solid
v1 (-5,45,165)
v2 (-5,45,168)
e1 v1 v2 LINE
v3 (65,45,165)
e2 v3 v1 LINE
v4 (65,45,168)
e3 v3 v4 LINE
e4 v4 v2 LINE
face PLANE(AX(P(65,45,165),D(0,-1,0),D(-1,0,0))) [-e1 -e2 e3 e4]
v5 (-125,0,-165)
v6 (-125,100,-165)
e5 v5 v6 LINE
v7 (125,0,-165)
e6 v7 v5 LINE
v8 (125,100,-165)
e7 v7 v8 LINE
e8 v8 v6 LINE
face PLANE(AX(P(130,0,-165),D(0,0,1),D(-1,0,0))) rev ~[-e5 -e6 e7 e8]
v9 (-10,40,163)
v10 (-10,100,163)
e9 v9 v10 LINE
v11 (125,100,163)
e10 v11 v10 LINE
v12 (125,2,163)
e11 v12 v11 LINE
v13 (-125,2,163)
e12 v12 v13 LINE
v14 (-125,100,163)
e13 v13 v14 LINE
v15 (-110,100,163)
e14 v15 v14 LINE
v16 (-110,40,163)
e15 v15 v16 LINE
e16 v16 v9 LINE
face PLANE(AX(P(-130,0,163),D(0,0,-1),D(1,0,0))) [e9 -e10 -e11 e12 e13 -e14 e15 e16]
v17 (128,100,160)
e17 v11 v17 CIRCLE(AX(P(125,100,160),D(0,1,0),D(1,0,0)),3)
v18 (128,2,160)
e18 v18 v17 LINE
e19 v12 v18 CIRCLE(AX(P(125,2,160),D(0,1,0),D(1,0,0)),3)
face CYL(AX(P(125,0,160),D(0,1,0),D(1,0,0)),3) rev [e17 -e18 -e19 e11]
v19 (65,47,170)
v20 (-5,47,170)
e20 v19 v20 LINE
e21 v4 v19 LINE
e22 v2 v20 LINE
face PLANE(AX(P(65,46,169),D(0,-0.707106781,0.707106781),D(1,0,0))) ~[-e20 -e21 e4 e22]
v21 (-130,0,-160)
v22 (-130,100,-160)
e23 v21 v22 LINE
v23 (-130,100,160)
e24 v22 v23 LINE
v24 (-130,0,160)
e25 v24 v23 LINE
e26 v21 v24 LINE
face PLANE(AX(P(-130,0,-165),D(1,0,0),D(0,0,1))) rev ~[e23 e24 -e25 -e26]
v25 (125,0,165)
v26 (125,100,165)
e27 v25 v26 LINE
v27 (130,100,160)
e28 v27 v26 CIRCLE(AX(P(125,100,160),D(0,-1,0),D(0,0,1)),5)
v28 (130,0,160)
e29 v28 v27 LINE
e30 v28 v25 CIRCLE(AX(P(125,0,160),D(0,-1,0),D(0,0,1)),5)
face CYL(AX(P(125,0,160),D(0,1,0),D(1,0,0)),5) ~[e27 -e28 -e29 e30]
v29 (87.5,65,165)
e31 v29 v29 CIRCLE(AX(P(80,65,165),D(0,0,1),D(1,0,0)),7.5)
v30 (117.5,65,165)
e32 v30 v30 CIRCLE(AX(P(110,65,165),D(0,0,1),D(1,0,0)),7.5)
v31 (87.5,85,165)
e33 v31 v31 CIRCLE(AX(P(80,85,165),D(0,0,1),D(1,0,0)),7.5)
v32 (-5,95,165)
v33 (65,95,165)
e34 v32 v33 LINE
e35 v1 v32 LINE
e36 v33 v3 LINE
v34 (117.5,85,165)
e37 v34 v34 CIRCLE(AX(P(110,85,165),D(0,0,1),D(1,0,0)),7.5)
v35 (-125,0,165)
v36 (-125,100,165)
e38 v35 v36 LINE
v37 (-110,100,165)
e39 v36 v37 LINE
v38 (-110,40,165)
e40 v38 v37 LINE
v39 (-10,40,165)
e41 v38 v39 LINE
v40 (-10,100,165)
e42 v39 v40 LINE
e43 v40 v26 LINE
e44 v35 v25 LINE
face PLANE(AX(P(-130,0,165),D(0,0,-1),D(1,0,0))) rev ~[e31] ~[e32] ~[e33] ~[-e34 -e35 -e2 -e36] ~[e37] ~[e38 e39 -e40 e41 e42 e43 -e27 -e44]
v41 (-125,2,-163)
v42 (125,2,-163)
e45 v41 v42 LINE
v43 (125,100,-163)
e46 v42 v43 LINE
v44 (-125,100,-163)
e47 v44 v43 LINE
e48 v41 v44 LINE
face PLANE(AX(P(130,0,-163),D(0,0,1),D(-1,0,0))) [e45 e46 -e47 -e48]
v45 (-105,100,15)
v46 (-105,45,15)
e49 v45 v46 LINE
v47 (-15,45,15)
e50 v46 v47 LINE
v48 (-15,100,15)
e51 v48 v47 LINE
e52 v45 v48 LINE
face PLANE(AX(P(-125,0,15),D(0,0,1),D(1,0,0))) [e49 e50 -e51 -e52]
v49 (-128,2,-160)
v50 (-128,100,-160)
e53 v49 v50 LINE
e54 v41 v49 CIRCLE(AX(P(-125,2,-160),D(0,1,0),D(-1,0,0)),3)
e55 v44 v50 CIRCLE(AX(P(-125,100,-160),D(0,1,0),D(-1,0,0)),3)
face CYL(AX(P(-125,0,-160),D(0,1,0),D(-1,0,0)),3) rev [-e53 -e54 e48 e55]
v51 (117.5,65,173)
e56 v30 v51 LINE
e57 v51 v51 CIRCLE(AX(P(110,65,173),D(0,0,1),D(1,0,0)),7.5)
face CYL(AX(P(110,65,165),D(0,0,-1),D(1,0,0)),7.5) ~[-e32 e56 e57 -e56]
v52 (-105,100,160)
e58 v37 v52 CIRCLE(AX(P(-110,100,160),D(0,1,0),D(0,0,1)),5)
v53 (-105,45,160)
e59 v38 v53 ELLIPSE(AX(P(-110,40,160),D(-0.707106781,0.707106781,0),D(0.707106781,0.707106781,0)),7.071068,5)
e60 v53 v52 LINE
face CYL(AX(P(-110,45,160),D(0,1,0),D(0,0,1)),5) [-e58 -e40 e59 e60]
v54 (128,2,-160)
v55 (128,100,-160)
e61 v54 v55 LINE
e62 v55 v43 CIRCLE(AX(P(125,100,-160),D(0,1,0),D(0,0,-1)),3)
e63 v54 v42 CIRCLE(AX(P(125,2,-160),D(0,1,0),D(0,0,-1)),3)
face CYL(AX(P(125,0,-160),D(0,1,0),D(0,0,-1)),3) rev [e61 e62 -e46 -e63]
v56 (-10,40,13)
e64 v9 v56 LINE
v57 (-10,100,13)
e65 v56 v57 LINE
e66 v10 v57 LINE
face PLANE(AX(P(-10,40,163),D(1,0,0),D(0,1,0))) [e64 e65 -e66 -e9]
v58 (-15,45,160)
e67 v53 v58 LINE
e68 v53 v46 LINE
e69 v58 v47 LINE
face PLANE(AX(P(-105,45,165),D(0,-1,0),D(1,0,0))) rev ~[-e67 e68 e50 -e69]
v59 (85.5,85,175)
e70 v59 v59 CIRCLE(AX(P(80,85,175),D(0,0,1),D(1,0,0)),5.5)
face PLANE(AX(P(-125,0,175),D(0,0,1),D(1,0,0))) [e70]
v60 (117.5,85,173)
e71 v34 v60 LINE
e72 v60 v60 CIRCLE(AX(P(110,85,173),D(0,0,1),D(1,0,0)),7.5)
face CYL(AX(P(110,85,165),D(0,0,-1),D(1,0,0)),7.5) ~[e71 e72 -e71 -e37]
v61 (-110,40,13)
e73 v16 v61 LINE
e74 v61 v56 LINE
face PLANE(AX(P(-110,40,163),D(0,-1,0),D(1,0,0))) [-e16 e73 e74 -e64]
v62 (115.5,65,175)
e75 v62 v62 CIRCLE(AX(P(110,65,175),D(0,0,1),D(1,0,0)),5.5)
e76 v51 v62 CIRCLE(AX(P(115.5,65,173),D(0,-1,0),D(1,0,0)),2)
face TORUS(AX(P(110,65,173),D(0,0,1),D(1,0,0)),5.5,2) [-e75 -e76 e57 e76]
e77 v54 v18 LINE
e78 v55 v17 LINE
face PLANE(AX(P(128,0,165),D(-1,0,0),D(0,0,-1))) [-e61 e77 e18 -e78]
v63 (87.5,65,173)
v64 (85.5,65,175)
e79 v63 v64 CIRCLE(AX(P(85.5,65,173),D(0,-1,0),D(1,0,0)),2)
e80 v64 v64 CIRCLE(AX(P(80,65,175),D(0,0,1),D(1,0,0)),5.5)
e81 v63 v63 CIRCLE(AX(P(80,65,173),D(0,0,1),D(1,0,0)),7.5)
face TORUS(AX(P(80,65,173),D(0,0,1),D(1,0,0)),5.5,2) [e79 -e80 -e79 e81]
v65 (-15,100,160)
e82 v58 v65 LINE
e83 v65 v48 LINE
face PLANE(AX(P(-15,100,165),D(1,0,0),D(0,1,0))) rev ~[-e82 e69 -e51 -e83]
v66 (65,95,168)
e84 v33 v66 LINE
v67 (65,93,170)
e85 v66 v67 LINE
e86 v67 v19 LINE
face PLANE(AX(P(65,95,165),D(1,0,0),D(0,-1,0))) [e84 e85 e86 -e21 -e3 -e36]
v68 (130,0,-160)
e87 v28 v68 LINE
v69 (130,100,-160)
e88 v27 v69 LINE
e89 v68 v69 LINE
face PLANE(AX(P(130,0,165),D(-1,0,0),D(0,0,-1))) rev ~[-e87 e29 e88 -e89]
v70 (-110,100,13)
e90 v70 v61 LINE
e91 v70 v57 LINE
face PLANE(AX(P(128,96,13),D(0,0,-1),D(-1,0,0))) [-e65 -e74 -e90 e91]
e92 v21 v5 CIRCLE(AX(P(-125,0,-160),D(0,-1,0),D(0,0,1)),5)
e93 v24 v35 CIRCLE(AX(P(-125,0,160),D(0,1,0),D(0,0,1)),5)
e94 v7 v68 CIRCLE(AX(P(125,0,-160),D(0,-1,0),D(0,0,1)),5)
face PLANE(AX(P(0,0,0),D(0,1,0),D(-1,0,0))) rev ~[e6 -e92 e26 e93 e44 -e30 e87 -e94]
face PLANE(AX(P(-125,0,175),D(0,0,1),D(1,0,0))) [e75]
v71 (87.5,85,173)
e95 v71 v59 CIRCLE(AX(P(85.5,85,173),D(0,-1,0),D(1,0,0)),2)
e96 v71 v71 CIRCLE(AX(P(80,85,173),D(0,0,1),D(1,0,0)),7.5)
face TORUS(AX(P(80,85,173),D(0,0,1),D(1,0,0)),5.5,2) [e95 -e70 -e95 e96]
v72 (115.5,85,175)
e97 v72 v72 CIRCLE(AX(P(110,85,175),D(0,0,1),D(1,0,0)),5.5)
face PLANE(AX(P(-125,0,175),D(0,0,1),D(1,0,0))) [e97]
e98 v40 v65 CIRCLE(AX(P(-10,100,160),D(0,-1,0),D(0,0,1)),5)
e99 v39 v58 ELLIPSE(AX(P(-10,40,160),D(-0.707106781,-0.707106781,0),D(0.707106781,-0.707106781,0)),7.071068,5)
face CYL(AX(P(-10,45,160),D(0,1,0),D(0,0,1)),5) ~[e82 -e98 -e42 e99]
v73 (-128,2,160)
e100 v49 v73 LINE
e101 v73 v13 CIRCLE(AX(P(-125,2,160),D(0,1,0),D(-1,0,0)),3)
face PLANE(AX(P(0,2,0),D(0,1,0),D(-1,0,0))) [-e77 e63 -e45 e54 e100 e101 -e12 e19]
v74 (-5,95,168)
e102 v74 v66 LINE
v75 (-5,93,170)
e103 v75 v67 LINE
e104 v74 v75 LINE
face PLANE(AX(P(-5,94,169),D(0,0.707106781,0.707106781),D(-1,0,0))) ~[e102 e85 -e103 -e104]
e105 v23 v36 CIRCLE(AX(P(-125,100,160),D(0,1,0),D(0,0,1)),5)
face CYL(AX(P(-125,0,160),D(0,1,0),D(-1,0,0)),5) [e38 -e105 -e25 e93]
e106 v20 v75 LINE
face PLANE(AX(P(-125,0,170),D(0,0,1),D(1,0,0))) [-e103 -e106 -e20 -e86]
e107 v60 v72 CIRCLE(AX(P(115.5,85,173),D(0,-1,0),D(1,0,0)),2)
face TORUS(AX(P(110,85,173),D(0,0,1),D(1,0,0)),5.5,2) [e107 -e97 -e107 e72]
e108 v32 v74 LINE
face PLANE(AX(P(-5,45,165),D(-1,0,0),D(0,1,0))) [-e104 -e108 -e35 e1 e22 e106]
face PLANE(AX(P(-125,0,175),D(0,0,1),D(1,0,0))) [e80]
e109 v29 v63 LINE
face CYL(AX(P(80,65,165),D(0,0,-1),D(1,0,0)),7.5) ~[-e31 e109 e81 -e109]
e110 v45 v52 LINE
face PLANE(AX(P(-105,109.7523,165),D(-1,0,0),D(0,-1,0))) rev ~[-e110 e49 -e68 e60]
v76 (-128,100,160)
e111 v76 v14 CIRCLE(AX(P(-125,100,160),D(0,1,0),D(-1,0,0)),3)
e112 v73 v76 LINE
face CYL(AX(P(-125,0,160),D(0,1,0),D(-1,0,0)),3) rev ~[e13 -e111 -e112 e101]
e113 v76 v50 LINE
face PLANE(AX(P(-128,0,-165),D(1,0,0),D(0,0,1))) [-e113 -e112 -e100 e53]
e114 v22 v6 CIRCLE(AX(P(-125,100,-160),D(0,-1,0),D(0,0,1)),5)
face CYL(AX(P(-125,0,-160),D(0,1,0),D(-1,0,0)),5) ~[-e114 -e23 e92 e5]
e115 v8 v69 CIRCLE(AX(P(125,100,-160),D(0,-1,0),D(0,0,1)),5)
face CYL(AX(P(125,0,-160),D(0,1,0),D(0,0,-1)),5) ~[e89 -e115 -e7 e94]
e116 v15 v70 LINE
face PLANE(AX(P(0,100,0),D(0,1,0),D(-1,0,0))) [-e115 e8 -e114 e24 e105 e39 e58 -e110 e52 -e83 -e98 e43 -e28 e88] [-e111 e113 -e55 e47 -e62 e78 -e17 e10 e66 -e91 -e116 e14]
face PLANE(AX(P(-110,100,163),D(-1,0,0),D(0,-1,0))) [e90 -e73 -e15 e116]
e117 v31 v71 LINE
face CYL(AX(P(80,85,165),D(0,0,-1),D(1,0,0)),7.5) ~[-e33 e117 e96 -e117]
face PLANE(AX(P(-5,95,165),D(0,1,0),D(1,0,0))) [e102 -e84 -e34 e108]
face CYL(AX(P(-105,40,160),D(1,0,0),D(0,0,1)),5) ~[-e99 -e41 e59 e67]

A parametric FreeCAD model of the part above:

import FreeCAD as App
import Part
import Sketcher
from FreeCAD import Vector
Q = App.Units.Quantity


def edges_at(feature, points):
    """Names of the edges that pass closest to the given points."""
    edges = feature.Shape.Edges
    near = lambda p: min(range(len(edges)), key=lambda i: edges[i].distToShape(Part.Vertex(*p))[0])
    return sorted({f"Edge{near(p) + 1}" for p in points})


def faces_at(feature, points):
    """Names of the faces that lie closest to the given points."""
    faces = feature.Shape.Faces
    near = lambda p: min(range(len(faces)), key=lambda i: faces[i].distToShape(Part.Vertex(*p))[0])
    return sorted({f"Face{near(p) + 1}" for p in points})

doc = App.newDocument("Part")
params = doc.addObject("Spreadsheet::Sheet", "Params")
for row, (alias, value) in enumerate([
    ("sketch1_width", "260 mm"),
    ("sketch1_height", "330 mm"),
    ("pad1_length", "100 mm"),
    ("fillet_radius", "5 mm"),
    ("thickness_wall", "2 mm"),
    ("sketch2_width", "100 mm"),
    ("sketch2_height", "60 mm"),
    ("pad2_length", "150 mm"),
    ("sketch3_width", "90 mm"),
    ("pocket1_length", "150 mm"),
    ("fillet2_radius", "5 mm"),
    ("sketch4_diameter", "15 mm"),
    ("pad3_length", "10 mm"),
    ("fillet3_radius", "2 mm"),
    ("sketch5_width", "70 mm"),
    ("sketch5_height", "50 mm"),
    ("pad4_length", "5 mm"),
    ("chamfer_size", "2 mm"),
], start=1):
    params.set(f"A{row}", alias)
    params.set(f"B{row}", "=" + value)
    params.setAlias(f"B{row}", alias)

body = doc.addObject("PartDesign::Body", "Body")

sketch1 = body.newObject("Sketcher::SketchObject", "Sketch")
sketch1.AttachmentSupport = (doc.getObject("XZ_Plane"), [""])
sketch1.MapMode = "FlatFace"
sketch1.addGeometry(Part.LineSegment(Vector(-130, -165, 0), Vector(-130, 165, 0)), False)
sketch1.addGeometry(Part.LineSegment(Vector(-130, 165, 0), Vector(130, 165, 0)), False)
sketch1.addGeometry(Part.LineSegment(Vector(130, 165, 0), Vector(130, -165, 0)), False)
sketch1.addGeometry(Part.LineSegment(Vector(130, -165, 0), Vector(-130, -165, 0)), False)
sketch1.addConstraint(Sketcher.Constraint("Coincident", 0, 2, 1, 1))
sketch1.addConstraint(Sketcher.Constraint("Coincident", 1, 2, 2, 1))
sketch1.addConstraint(Sketcher.Constraint("Coincident", 2, 2, 3, 1))
sketch1.addConstraint(Sketcher.Constraint("Coincident", 3, 2, 0, 1))
sketch1.addConstraint(Sketcher.Constraint("Vertical", 0))
sketch1.addConstraint(Sketcher.Constraint("Horizontal", 1))
sketch1.addConstraint(Sketcher.Constraint("Vertical", 2))
sketch1.addConstraint(Sketcher.Constraint("Horizontal", 3))
sketch1.addConstraint(Sketcher.Constraint("Symmetric", 0, 2, 2, 2, -1, 1))
sketch1.addConstraint(Sketcher.Constraint("DistanceX", 1, 1, 1, 2, Q("260 mm")))
sketch1.addConstraint(Sketcher.Constraint("DistanceY", 0, 1, 0, 2, Q("330 mm")))
sketch1.setExpression("Constraints[9]", "Params.sketch1_width")
sketch1.setExpression("Constraints[10]", "Params.sketch1_height")
pad1 = body.newObject("PartDesign::Pad", "Pad")
pad1.Profile = sketch1
pad1.setExpression("Length", "Params.pad1_length")
pad1.Reversed = True
doc.recompute()

fillet = body.newObject("PartDesign::Fillet", "Fillet")
fillet.Base = (pad1, edges_at(pad1, [
    (130, 50, 165),
    (130, 50, -165),
    (-130, 50, -165),
    (-130, 50, 165),
]))
fillet.setExpression("Radius", "Params.fillet_radius")
doc.recompute()

thickness = body.newObject("PartDesign::Thickness", "Thickness")
thickness.Base = (fillet, faces_at(fillet, [(43.333, 100, 53.333)]))
thickness.setExpression("Value", "Params.thickness_wall")
thickness.Reversed = True
thickness.Join = "Intersection"

sketch2 = body.newObject("Sketcher::SketchObject", "Sketch001")
sketch2.AttachmentSupport = (doc.getObject("XY_Plane"), [""])
sketch2.MapMode = "FlatFace"
sketch2.AttachmentOffset = App.Placement(Vector(0, 0, 163), App.Rotation())
sketch2.addGeometry(Part.LineSegment(Vector(-110, 40, 0), Vector(-110, 100, 0)), False)
sketch2.addGeometry(Part.LineSegment(Vector(-110, 100, 0), Vector(-10, 100, 0)), False)
sketch2.addGeometry(Part.LineSegment(Vector(-10, 100, 0), Vector(-10, 40, 0)), False)
sketch2.addGeometry(Part.LineSegment(Vector(-10, 40, 0), Vector(-110, 40, 0)), False)
sketch2.addConstraint(Sketcher.Constraint("Coincident", 0, 2, 1, 1))
sketch2.addConstraint(Sketcher.Constraint("Coincident", 1, 2, 2, 1))
sketch2.addConstraint(Sketcher.Constraint("Coincident", 2, 2, 3, 1))
sketch2.addConstraint(Sketcher.Constraint("Coincident", 3, 2, 0, 1))
sketch2.addConstraint(Sketcher.Constraint("Vertical", 0))
sketch2.addConstraint(Sketcher.Constraint("Horizontal", 1))
sketch2.addConstraint(Sketcher.Constraint("Vertical", 2))
sketch2.addConstraint(Sketcher.Constraint("Horizontal", 3))
sketch2.addConstraint(Sketcher.Constraint("DistanceX", 1, 1, 1, 2, Q("100 mm")))
sketch2.addConstraint(Sketcher.Constraint("DistanceY", 0, 1, 0, 2, Q("60 mm")))
sketch2.addConstraint(Sketcher.Constraint("DistanceY", -1, 1, 0, 2, Q("100 mm")))
sketch2.addConstraint(Sketcher.Constraint("DistanceX", 0, 2, -1, 1, Q("110 mm")))
sketch2.setExpression("Constraints[8]", "Params.sketch2_width")
sketch2.setExpression("Constraints[9]", "Params.sketch2_height")
pad2 = body.newObject("PartDesign::Pad", "Pad001")
pad2.Profile = sketch2
pad2.setExpression("Length", "Params.pad2_length")
pad2.Reversed = True

sketch3 = body.newObject("Sketcher::SketchObject", "Sketch002")
sketch3.AttachmentSupport = (doc.getObject("XY_Plane"), [""])
sketch3.MapMode = "FlatFace"
sketch3.AttachmentOffset = App.Placement(Vector(0, 0, 165), App.Rotation())
sketch3.addGeometry(Part.LineSegment(Vector(-105, 109.7523, 0), Vector(-105, 45, 0)), False)
sketch3.addGeometry(Part.LineSegment(Vector(-105, 45, 0), Vector(-15, 45, 0)), False)
sketch3.addGeometry(Part.LineSegment(Vector(-15, 45, 0), Vector(-15, 109.7523, 0)), False)
sketch3.addGeometry(Part.LineSegment(Vector(-15, 109.7523, 0), Vector(-105, 109.7523, 0)), False)
sketch3.addConstraint(Sketcher.Constraint("Coincident", 0, 2, 1, 1))
sketch3.addConstraint(Sketcher.Constraint("Coincident", 1, 2, 2, 1))
sketch3.addConstraint(Sketcher.Constraint("Coincident", 2, 2, 3, 1))
sketch3.addConstraint(Sketcher.Constraint("Coincident", 3, 2, 0, 1))
sketch3.addConstraint(Sketcher.Constraint("Vertical", 0))
sketch3.addConstraint(Sketcher.Constraint("Horizontal", 1))
sketch3.addConstraint(Sketcher.Constraint("Vertical", 2))
sketch3.addConstraint(Sketcher.Constraint("Horizontal", 3))
sketch3.addConstraint(Sketcher.Constraint("DistanceX", 1, 1, 1, 2, Q("90 mm")))
sketch3.addConstraint(Sketcher.Constraint("DistanceX", 0, 2, -1, 1, Q("105 mm")))
sketch3.addConstraint(Sketcher.Constraint("DistanceY", -1, 1, 0, 2, Q("45 mm")))
sketch3.addConstraint(Sketcher.Constraint("DistanceY", 0, 2, 0, 1, Q("64.7523 mm")))
sketch3.setExpression("Constraints[8]", "Params.sketch3_width")
pocket1 = body.newObject("PartDesign::Pocket", "Pocket")
pocket1.Profile = sketch3
pocket1.setExpression("Length", "Params.pocket1_length")
doc.recompute()

fillet2 = body.newObject("PartDesign::Fillet", "Fillet001")
fillet2.Base = (pocket1, edges_at(pocket1, [(-60, 45, 165), (-105, 72.5, 165), (-15, 72.5, 165)]))
fillet2.setExpression("Radius", "Params.fillet2_radius")

sketch4 = body.newObject("Sketcher::SketchObject", "Sketch003")
sketch4.AttachmentSupport = (doc.getObject("XY_Plane"), [""])
sketch4.MapMode = "FlatFace"
sketch4.AttachmentOffset = App.Placement(Vector(0, 0, 165), App.Rotation())
sketch4.addGeometry(Part.Circle(Vector(110, 85, 0), Vector(0, 0, 1), 7.5), False)
sketch4.addGeometry(Part.Circle(Vector(80, 85, 0), Vector(0, 0, 1), 7.5), False)
sketch4.addGeometry(Part.Circle(Vector(110, 65, 0), Vector(0, 0, 1), 7.5), False)
sketch4.addGeometry(Part.Circle(Vector(80, 65, 0), Vector(0, 0, 1), 7.5), False)
sketch4.addConstraint(Sketcher.Constraint("Equal", 0, 1))
sketch4.addConstraint(Sketcher.Constraint("Equal", 1, 2))
sketch4.addConstraint(Sketcher.Constraint("Equal", 2, 3))
sketch4.addConstraint(Sketcher.Constraint("Horizontal", 0, 3, 1, 3))
sketch4.addConstraint(Sketcher.Constraint("Horizontal", 2, 3, 3, 3))
sketch4.addConstraint(Sketcher.Constraint("Vertical", 0, 3, 2, 3))
sketch4.addConstraint(Sketcher.Constraint("Vertical", 1, 3, 3, 3))
sketch4.addConstraint(Sketcher.Constraint("Diameter", 0, Q("15 mm")))
sketch4.addConstraint(Sketcher.Constraint("DistanceX", 1, 3, 0, 3, Q("30 mm")))
sketch4.addConstraint(Sketcher.Constraint("DistanceY", 2, 3, 0, 3, Q("20 mm")))
sketch4.addConstraint(Sketcher.Constraint("DistanceX", -1, 1, 0, 3, Q("110 mm")))
sketch4.addConstraint(Sketcher.Constraint("DistanceY", -1, 1, 0, 3, Q("85 mm")))
sketch4.setExpression("Constraints[7]", "Params.sketch4_diameter")
pad3 = body.newObject("PartDesign::Pad", "Pad002")
pad3.Profile = sketch4
pad3.setExpression("Length", "Params.pad3_length")
doc.recompute()

fillet3 = body.newObject("PartDesign::Fillet", "Fillet002")
fillet3.Base = (pad3, edges_at(pad3, [
    (102.5, 85, 175),
    (102.5, 65, 175),
    (72.5, 65, 175),
    (72.5, 85, 175),
]))
fillet3.setExpression("Radius", "Params.fillet3_radius")

sketch5 = body.newObject("Sketcher::SketchObject", "Sketch004")
sketch5.AttachmentSupport = (doc.getObject("XY_Plane"), [""])
sketch5.MapMode = "FlatFace"
sketch5.AttachmentOffset = App.Placement(Vector(0, 0, 165), App.Rotation())
sketch5.addGeometry(Part.LineSegment(Vector(65, 95, 0), Vector(-5, 95, 0)), False)
sketch5.addGeometry(Part.LineSegment(Vector(-5, 95, 0), Vector(-5, 45, 0)), False)
sketch5.addGeometry(Part.LineSegment(Vector(-5, 45, 0), Vector(65, 45, 0)), False)
sketch5.addGeometry(Part.LineSegment(Vector(65, 45, 0), Vector(65, 95, 0)), False)
sketch5.addConstraint(Sketcher.Constraint("Coincident", 0, 2, 1, 1))
sketch5.addConstraint(Sketcher.Constraint("Coincident", 1, 2, 2, 1))
sketch5.addConstraint(Sketcher.Constraint("Coincident", 2, 2, 3, 1))
sketch5.addConstraint(Sketcher.Constraint("Coincident", 3, 2, 0, 1))
sketch5.addConstraint(Sketcher.Constraint("Horizontal", 0))
sketch5.addConstraint(Sketcher.Constraint("Vertical", 1))
sketch5.addConstraint(Sketcher.Constraint("Horizontal", 2))
sketch5.addConstraint(Sketcher.Constraint("Vertical", 3))
sketch5.addConstraint(Sketcher.Constraint("DistanceX", 0, 2, 0, 1, Q("70 mm")))
sketch5.addConstraint(Sketcher.Constraint("DistanceY", 1, 2, 1, 1, Q("50 mm")))
sketch5.addConstraint(Sketcher.Constraint("DistanceX", 0, 2, -1, 1, Q("5 mm")))
sketch5.addConstraint(Sketcher.Constraint("DistanceY", -1, 1, 0, 2, Q("95 mm")))
sketch5.setExpression("Constraints[8]", "Params.sketch5_width")
sketch5.setExpression("Constraints[9]", "Params.sketch5_height")
pad4 = body.newObject("PartDesign::Pad", "Pad003")
pad4.Profile = sketch5
pad4.setExpression("Length", "Params.pad4_length")
doc.recompute()

chamfer = body.newObject("PartDesign::Chamfer", "Chamfer")
chamfer.Base = (pad4, edges_at(pad4, [(30, 95, 170), (30, 45, 170)]))
chamfer.setExpression("Size", "Params.chamfer_size")

doc.recompute()
